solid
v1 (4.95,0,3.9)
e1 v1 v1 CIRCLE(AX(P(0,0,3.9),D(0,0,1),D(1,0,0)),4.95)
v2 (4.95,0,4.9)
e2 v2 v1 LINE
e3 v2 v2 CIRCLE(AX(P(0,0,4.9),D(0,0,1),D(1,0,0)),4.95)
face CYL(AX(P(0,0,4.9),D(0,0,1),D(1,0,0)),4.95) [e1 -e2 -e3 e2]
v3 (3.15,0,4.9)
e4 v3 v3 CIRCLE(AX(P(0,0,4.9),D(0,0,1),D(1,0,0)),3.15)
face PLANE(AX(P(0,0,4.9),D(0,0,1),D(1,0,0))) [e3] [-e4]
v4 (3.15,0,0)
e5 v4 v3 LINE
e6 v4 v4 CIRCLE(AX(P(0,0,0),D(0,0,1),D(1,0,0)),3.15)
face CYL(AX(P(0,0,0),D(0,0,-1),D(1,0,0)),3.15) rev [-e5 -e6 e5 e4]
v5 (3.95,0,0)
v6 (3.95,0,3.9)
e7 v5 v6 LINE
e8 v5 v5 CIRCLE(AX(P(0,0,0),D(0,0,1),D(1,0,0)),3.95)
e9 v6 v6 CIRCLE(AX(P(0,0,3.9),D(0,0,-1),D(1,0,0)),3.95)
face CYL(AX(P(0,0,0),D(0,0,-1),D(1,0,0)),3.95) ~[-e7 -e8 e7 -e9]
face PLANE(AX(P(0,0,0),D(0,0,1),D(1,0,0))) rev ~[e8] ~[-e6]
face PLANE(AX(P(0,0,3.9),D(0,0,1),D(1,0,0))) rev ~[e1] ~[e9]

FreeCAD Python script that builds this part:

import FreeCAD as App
import Part
import Sketcher

V = App.Vector
Q = App.Units.Quantity

doc = App.newDocument("Part")
body = doc.addObject("PartDesign::Body", "Body")

# Sketch on XY plane
sketch1 = doc.addObject("Sketcher::SketchObject", "Sketch")
body.addObject(sketch1)
sketch1.AttachmentSupport = (doc.XY_Plane, [""])
sketch1.MapMode = "FlatFace"
sketch1.addGeometry([
    Part.Circle(V(0, 0, 0), V(0, 0, 1), 4),
    Part.Circle(V(0, 0, 0), V(0, 0, 1), 3.1),
], False)
sketch1.addConstraint([
    Sketcher.Constraint("Coincident", 0, 3, -1, 1),
    Sketcher.Constraint("Coincident", 1, 3, -1, 1),
    Sketcher.Constraint("Diameter", 0, Q("7.9 mm")),
    Sketcher.Constraint("Diameter", 1, Q("6.3 mm")),
])
pad1 = doc.addObject("PartDesign::Pad", "Pad")
body.addObject(pad1)
pad1.Profile = sketch1
pad1.Length = 4.9

# Sketch on XY plane
sketch2 = doc.addObject("Sketcher::SketchObject", "Sketch001")
body.addObject(sketch2)
sketch2.AttachmentSupport = (doc.XY_Plane, [""])
sketch2.MapMode = "FlatFace"
sketch2.AttachmentOffset = App.Placement(V(0, 0, 4.9), App.Rotation())
sketch2.addGeometry([
    Part.Circle(V(0, 0, 0), V(0, 0, 1), 5),
    Part.Circle(V(0, 0, 0), V(0, 0, 1), 3.1),
], False)
sketch2.addConstraint([
    Sketcher.Constraint("Coincident", 0, 3, -1, 1),
    Sketcher.Constraint("Coincident", 1, 3, -1, 1),
    Sketcher.Constraint("Diameter", 0, Q("9.9 mm")),
    Sketcher.Constraint("Diameter", 1, Q("6.3 mm")),
])
pad2 = doc.addObject("PartDesign::Pad", "Pad001")
body.addObject(pad2)
pad2.Profile = sketch2
pad2.Length = 1
pad2.Reversed = True

doc.recompute()
